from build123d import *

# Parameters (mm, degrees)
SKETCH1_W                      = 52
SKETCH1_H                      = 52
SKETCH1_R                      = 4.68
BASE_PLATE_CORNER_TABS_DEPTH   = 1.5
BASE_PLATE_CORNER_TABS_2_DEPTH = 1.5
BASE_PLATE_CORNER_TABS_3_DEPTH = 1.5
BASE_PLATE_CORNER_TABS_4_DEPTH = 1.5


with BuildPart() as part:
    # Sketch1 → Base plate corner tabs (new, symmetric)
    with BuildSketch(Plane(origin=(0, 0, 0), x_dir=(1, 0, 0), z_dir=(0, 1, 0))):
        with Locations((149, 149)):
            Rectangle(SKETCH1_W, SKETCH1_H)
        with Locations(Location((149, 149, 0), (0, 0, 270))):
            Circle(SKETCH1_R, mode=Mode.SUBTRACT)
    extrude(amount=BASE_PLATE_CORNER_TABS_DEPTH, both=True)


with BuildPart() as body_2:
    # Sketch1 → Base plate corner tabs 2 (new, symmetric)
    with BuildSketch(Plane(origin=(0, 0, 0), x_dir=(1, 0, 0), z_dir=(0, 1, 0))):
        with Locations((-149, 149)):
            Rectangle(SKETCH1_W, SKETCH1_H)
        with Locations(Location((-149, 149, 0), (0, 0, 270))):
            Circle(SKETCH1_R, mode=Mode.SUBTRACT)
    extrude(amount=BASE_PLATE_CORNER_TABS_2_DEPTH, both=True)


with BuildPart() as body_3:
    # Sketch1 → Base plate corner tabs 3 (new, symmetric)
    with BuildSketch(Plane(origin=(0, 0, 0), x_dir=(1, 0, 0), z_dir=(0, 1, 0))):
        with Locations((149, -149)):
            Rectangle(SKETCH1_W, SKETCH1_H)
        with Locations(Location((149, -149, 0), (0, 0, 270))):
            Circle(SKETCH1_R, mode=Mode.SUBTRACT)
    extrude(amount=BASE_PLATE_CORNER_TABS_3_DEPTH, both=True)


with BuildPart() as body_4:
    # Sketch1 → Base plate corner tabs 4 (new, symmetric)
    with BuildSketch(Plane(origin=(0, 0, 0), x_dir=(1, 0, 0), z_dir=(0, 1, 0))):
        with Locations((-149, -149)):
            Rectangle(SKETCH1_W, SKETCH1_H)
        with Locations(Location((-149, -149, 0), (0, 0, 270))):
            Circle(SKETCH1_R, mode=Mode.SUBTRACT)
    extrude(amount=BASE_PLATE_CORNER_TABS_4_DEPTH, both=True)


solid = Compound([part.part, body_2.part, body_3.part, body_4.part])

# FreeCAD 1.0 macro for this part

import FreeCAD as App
import Part
import Sketcher

V = App.Vector


def add_polygon(sketch, points):
    """Adds a closed chain of lines whose ends are joined by coincident constraints."""
    first, n = sketch.GeometryCount, len(points)
    for a, b in zip(points, points[1:] + points[:1]):
        sketch.addGeometry(Part.LineSegment(App.Vector(*a, 0), App.Vector(*b, 0)), False)
    for i in range(n):
        sketch.addConstraint(Sketcher.Constraint("Coincident", first + i, 2, first + (i + 1) % n, 1))

doc = App.newDocument("Part")
body = doc.addObject("PartDesign::Body", "Body")

# Sketch on XZ plane
sketch1 = body.newObject("Sketcher::SketchObject", "Sketch")
sketch1.AttachmentSupport = (doc.getObject("XZ_Plane"), [""])
sketch1.MapMode = "FlatFace"
add_polygon(sketch1, [(123, -175), (123, -123), (175, -123), (175, -175)])  # lines 0-3
sketch1.addGeometry(Part.Circle(V(149, -149, 0), V(0, 0, 1), 4.7), False)  # 4
sketch1.addConstraint([
    Sketcher.Constraint("Vertical", 0),
    Sketcher.Constraint("Horizontal", 1),
    Sketcher.Constraint("Vertical", 2),
    Sketcher.Constraint("Horizontal", 3),
    Sketcher.Constraint("Equal", 3, 0),
    Sketcher.Constraint("Diameter", 4, 9.36),
    Sketcher.Constraint("DistanceX", 1, 1, 1, 2, 52.0),
    Sketcher.Constraint("DistanceX", -1, 1, 4, 3, 149.0),
    Sketcher.Constraint("DistanceY", 4, 3, -1, 1, 149.0),
    Sketcher.Constraint("DistanceX", -1, 1, 0, 2, 123.0),
    Sketcher.Constraint("DistanceY", 0, 2, -1, 1, 123.0),
])
pad1 = body.newObject("PartDesign::Pad", "Pad")
pad1.Profile = sketch1
pad1.Length = 3
pad1.Midplane = True
body2 = doc.addObject("PartDesign::Body", "Body001")

# Sketch on XZ plane
sketch2 = body2.newObject("Sketcher::SketchObject", "Sketch001")
sketch2.AttachmentSupport = (doc.getObject("XZ_Plane001"), [""])
sketch2.MapMode = "FlatFace"
add_polygon(sketch2, [(-175, -175), (-175, -123), (-123, -123), (-123, -175)])  # lines 0-3
sketch2.addGeometry(Part.Circle(V(-149, -149, 0), V(0, 0, 1), 4.7), False)  # 4
sketch2.addConstraint([
    Sketcher.Constraint("Vertical", 0),
    Sketcher.Constraint("Horizontal", 1),
    Sketcher.Constraint("Vertical", 2),
    Sketcher.Constraint("Horizontal", 3),
    Sketcher.Constraint("Equal", 3, 0),
    Sketcher.Constraint("Diameter", 4, 9.36),
    Sketcher.Constraint("DistanceX", 1, 1, 1, 2, 52.0),
    Sketcher.Constraint("DistanceX", 4, 3, -1, 1, 149.0),
    Sketcher.Constraint("DistanceY", 4, 3, -1, 1, 149.0),
    Sketcher.Constraint("DistanceX", 0, 2, -1, 1, 175.0),
    Sketcher.Constraint("DistanceY", 0, 2, -1, 1, 123.0),
])
pad2 = body2.newObject("PartDesign::Pad", "Pad001")
pad2.Profile = sketch2
pad2.Length = 3
pad2.Midplane = True
body3 = doc.addObject("PartDesign::Body", "Body002")

# Sketch on XZ plane
sketch3 = body3.newObject("Sketcher::SketchObject", "Sketch002")
sketch3.AttachmentSupport = (doc.getObject("XZ_Plane002"), [""])
sketch3.MapMode = "FlatFace"
add_polygon(sketch3, [(123, 123), (123, 175), (175, 175), (175, 123)])  # lines 0-3
sketch3.addGeometry(Part.Circle(V(149, 149, 0), V(0, 0, 1), 4.7), False)  # 4
sketch3.addConstraint([
    Sketcher.Constraint("Vertical", 0),
    Sketcher.Constraint("Horizontal", 1),
    Sketcher.Constraint("Vertical", 2),
    Sketcher.Constraint("Horizontal", 3),
    Sketcher.Constraint("Equal", 3, 0),
    Sketcher.Constraint("Diameter", 4, 9.36),
    Sketcher.Constraint("DistanceX", 1, 1, 1, 2, 52.0),
    Sketcher.Constraint("DistanceX", -1, 1, 4, 3, 149.0),
    Sketcher.Constraint("DistanceY", -1, 1, 4, 3, 149.0),
    Sketcher.Constraint("DistanceX", -1, 1, 0, 2, 123.0),
    Sketcher.Constraint("DistanceY", -1, 1, 0, 2, 175.0),
])
pad3 = body3.newObject("PartDesign::Pad", "Pad002")
pad3.Profile = sketch3
pad3.Length = 3
pad3.Midplane = True
body4 = doc.addObject("PartDesign::Body", "Body003")

# Sketch on XZ plane
sketch4 = body4.newObject("Sketcher::SketchObject", "Sketch003")
sketch4.AttachmentSupport = (doc.getObject("XZ_Plane003"), [""])
sketch4.MapMode = "FlatFace"
add_polygon(sketch4, [(-175, 123), (-175, 175), (-123, 175), (-123, 123)])  # lines 0-3
sketch4.addGeometry(Part.Circle(V(-149, 149, 0), V(0, 0, 1), 4.7), False)  # 4
sketch4.addConstraint([
    Sketcher.Constraint("Vertical", 0),
    Sketcher.Constraint("Horizontal", 1),
    Sketcher.Constraint("Vertical", 2),
    Sketcher.Constraint("Horizontal", 3),
    Sketcher.Constraint("Equal", 3, 0),
    Sketcher.Constraint("Diameter", 4, 9.36),
    Sketcher.Constraint("DistanceX", 1, 1, 1, 2, 52.0),
    Sketcher.Constraint("DistanceX", 4, 3, -1, 1, 149.0),
    Sketcher.Constraint("DistanceY", -1, 1, 4, 3, 149.0),
    Sketcher.Constraint("DistanceX", 0, 2, -1, 1, 175.0),
    Sketcher.Constraint("DistanceY", -1, 1, 0, 2, 175.0),
])
pad4 = body4.newObject("PartDesign::Pad", "Pad003")
pad4.Profile = sketch4
pad4.Length = 3
pad4.Midplane = True

doc.recompute()
